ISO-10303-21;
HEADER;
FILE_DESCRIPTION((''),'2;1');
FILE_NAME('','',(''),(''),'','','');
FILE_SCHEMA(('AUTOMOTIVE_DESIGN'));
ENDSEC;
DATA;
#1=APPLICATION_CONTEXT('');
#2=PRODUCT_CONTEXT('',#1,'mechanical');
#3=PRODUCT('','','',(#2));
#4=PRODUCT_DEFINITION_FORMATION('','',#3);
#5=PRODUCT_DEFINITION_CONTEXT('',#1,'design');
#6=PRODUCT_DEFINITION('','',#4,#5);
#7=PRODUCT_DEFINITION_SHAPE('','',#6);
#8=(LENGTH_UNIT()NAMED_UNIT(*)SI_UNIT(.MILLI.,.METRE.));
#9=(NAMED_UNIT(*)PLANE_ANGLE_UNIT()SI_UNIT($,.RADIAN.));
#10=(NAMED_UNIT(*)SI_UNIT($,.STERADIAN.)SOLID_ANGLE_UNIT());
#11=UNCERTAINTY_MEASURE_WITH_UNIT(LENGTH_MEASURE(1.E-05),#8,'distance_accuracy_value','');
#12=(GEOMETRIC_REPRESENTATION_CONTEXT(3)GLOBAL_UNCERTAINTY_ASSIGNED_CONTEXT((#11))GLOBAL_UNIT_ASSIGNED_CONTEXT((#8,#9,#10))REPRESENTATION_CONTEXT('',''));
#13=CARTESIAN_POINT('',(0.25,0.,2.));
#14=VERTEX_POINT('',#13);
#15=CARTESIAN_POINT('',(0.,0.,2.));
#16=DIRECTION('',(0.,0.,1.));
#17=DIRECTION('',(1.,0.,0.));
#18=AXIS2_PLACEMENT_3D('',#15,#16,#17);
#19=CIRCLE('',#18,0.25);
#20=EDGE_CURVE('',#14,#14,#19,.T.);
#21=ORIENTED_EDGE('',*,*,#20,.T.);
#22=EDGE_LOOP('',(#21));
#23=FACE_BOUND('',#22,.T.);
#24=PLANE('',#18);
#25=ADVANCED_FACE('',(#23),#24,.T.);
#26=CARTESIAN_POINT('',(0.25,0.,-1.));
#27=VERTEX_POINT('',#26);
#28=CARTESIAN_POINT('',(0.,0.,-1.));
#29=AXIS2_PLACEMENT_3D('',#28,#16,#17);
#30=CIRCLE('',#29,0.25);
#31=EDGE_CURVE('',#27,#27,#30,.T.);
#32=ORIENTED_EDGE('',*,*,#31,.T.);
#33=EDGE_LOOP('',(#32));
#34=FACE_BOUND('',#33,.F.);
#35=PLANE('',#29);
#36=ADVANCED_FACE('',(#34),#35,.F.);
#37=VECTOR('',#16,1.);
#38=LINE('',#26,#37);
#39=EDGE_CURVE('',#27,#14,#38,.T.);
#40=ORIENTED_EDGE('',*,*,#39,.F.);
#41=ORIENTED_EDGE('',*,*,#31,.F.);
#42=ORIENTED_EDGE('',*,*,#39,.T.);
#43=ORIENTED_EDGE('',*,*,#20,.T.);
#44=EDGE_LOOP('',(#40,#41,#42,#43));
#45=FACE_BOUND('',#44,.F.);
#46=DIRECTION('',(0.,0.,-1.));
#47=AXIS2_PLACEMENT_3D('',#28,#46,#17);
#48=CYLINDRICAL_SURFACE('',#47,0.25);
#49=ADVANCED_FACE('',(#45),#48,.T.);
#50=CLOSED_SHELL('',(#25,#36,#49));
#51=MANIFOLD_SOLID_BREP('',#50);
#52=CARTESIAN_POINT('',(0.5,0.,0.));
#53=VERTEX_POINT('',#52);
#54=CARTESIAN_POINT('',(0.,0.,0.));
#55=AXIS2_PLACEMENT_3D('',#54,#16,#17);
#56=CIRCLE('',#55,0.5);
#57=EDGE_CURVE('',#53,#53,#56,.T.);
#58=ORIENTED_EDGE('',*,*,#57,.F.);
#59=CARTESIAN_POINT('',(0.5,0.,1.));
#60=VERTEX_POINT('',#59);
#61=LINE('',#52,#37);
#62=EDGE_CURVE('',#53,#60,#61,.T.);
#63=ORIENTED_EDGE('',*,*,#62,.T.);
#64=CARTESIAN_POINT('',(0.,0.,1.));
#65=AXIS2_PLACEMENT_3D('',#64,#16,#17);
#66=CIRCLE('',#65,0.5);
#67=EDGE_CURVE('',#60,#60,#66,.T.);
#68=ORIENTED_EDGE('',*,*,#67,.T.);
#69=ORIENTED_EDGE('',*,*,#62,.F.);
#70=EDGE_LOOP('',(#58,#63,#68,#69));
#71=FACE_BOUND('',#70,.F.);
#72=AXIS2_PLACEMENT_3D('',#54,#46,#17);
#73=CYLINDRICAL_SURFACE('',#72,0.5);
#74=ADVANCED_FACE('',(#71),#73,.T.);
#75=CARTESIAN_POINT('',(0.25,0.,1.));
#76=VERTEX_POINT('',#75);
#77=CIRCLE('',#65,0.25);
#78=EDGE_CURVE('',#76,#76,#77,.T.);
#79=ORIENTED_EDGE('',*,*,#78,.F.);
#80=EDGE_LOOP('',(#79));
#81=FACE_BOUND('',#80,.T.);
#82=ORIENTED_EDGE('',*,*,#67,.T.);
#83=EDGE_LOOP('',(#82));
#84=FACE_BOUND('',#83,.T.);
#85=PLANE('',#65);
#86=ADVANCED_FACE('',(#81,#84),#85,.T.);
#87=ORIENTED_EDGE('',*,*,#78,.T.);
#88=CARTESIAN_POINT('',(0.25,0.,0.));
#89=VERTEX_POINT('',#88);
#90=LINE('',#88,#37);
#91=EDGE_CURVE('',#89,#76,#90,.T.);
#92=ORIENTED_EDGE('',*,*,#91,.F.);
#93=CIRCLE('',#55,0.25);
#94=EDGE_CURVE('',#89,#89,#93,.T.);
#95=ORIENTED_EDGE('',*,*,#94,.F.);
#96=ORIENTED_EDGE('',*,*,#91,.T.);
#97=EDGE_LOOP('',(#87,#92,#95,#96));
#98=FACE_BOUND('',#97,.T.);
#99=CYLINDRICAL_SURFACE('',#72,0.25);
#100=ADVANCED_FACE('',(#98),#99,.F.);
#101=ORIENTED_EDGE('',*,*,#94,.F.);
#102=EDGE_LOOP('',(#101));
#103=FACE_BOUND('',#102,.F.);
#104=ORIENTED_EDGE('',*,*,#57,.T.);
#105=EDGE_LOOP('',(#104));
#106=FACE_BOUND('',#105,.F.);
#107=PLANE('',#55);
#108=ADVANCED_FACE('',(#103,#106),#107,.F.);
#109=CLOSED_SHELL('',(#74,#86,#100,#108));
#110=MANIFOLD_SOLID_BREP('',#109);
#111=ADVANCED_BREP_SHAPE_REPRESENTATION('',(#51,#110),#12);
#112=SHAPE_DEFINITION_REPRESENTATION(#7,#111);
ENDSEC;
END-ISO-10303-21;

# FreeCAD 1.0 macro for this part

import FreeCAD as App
import Part
import Sketcher
from FreeCAD import Vector
Q = App.Units.Quantity

doc = App.newDocument("Part")
body = doc.addObject("PartDesign::Body", "Body")

sketch1 = body.newObject("Sketcher::SketchObject", "Sketch")
sketch1.AttachmentSupport = (doc.getObject("XY_Plane"), [""])
sketch1.MapMode = "FlatFace"
sketch1.addGeometry([
    Part.Circle(Vector(0, 0, 0), Vector(0, 0, 1), 0.5),
    Part.Circle(Vector(0, 0, 0), Vector(0, 0, 1), 0.25),
], False)
sketch1.addConstraint([
    Sketcher.Constraint("Coincident", 0, 3, -1, 1),
    Sketcher.Constraint("Coincident", 1, 3, -1, 1),
    Sketcher.Constraint("Diameter", 0, Q("1 mm")),
    Sketcher.Constraint("Diameter", 1, Q("0.5 mm")),
])
pad1 = body.newObject("PartDesign::Pad", "Pad")
pad1.Profile = sketch1
pad1.Length = 1
body2 = doc.addObject("PartDesign::Body", "Body001")

sketch2 = body2.newObject("Sketcher::SketchObject", "Sketch001")
sketch2.AttachmentSupport = (doc.getObject("XY_Plane001"), [""])
sketch2.MapMode = "FlatFace"
sketch2.AttachmentOffset = App.Placement(Vector(0, 0, -1), App.Rotation())
sketch2.addGeometry(Part.Circle(Vector(0, 0, 0), Vector(0, 0, 1), 0.25), False)
sketch2.addConstraint([
    Sketcher.Constraint("Coincident", 0, 3, -1, 1),
    Sketcher.Constraint("Diameter", 0, Q("0.5 mm")),
])
pad2 = body2.newObject("PartDesign::Pad", "Pad001")
pad2.Profile = sketch2
pad2.Length = 3

doc.recompute()
